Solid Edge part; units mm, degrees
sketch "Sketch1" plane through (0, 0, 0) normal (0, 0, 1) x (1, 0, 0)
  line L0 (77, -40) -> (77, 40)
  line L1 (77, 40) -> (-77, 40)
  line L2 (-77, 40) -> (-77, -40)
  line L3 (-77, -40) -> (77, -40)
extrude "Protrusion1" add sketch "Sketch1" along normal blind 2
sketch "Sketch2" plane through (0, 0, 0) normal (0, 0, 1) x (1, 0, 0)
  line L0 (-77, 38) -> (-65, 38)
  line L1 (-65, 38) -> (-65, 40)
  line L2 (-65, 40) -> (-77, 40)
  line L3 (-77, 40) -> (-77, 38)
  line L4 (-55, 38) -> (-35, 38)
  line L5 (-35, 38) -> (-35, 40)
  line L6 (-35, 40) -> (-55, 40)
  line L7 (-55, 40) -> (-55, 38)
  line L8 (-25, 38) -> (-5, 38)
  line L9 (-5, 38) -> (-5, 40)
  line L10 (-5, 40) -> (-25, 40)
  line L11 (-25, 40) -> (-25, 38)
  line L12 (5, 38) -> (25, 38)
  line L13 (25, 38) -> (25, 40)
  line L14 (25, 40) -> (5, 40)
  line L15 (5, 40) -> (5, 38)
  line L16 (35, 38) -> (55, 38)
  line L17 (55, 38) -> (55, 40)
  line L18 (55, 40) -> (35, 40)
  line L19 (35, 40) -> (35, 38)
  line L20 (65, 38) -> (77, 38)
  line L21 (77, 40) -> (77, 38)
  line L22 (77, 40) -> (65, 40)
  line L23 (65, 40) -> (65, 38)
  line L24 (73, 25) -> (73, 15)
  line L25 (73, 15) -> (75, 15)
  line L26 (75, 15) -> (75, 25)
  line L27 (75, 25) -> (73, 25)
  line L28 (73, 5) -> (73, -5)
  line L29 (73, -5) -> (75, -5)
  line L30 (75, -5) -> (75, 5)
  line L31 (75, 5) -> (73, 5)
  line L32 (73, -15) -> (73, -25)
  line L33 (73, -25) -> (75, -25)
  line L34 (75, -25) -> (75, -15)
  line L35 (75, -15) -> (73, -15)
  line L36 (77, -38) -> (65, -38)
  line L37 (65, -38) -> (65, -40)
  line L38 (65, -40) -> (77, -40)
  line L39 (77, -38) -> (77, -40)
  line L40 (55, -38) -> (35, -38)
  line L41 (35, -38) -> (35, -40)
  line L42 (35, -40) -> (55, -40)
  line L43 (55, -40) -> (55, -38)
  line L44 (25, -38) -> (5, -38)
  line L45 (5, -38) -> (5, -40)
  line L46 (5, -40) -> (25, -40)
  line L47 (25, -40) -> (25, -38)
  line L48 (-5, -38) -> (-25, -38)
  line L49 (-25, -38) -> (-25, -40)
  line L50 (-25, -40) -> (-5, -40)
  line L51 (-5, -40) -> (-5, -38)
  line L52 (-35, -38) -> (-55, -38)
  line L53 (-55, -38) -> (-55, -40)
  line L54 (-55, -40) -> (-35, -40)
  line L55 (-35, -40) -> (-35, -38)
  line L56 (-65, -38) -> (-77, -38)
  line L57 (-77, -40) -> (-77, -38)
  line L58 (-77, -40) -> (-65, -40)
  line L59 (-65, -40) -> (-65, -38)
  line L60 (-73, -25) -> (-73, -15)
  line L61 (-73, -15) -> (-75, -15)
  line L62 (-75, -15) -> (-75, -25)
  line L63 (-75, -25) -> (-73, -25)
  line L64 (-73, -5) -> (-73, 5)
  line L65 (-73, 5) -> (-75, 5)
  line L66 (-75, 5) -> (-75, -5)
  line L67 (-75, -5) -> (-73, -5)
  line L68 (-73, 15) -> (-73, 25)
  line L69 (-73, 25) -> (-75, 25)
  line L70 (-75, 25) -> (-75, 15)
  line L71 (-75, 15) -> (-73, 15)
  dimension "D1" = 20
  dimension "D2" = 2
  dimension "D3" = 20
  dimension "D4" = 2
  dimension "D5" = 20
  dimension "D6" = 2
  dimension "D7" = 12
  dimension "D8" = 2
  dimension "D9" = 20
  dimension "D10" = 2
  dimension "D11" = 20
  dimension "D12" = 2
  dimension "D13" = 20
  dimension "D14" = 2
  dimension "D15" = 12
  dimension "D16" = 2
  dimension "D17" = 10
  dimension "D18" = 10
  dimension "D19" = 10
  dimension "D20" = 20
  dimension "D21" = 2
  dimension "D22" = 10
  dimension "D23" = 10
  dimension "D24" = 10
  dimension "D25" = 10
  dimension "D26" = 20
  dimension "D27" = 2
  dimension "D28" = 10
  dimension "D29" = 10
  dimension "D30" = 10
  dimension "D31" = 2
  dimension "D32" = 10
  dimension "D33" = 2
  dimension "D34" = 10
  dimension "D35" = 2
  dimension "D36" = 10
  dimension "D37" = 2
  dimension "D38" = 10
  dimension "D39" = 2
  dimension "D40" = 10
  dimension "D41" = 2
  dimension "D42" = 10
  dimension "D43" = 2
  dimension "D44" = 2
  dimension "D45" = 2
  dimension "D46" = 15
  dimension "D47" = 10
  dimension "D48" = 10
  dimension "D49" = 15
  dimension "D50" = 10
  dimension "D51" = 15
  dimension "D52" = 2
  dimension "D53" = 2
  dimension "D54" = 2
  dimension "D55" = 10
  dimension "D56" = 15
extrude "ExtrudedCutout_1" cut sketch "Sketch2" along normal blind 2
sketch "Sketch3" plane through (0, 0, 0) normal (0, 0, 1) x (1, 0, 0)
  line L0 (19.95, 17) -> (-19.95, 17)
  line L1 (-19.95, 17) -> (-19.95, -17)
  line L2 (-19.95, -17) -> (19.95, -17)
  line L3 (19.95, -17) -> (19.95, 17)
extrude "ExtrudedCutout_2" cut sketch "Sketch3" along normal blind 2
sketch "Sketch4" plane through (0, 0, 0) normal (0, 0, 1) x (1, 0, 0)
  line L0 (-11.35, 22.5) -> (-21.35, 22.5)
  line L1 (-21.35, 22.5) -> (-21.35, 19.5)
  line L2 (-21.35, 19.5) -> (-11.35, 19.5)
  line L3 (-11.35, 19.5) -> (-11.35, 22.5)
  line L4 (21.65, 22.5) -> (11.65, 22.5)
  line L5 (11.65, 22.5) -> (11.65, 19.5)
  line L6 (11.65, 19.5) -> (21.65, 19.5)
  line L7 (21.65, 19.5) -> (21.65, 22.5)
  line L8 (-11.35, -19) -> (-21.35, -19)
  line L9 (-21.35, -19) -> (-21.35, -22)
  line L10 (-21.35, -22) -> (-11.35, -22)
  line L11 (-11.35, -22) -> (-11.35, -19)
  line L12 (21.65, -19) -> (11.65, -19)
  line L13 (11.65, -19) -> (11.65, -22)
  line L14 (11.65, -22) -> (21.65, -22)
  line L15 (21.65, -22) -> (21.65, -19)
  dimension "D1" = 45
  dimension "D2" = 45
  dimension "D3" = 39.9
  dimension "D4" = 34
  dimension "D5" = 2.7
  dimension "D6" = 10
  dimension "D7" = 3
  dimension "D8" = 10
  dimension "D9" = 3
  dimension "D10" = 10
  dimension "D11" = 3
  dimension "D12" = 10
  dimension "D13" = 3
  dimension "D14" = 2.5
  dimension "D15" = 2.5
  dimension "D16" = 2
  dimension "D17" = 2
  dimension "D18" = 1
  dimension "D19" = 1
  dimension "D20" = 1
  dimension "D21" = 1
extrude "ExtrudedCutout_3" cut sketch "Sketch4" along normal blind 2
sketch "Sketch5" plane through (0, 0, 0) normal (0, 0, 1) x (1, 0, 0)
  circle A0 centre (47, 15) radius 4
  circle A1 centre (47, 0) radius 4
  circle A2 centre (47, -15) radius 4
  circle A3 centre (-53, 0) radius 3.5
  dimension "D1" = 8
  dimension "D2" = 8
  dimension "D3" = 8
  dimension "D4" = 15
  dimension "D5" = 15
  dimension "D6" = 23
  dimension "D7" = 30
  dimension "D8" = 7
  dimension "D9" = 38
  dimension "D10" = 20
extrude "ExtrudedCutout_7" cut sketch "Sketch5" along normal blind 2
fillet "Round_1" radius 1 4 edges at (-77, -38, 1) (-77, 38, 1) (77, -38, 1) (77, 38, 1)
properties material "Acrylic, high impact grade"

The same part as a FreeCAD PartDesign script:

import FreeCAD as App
import Part
import Sketcher

V = App.Vector
Q = App.Units.Quantity


def edges_at(feature, points):
    """Names of the edges that pass closest to the given points."""
    edges = feature.Shape.Edges
    near = lambda p: min(range(len(edges)), key=lambda i: edges[i].distToShape(Part.Vertex(*p))[0])
    return sorted({f"Edge{near(p) + 1}" for p in points})


def add_polygon(sketch, points):
    """Adds a closed chain of lines whose ends are joined by coincident constraints."""
    first, n = sketch.GeometryCount, len(points)
    for a, b in zip(points, points[1:] + points[:1]):
        sketch.addGeometry(Part.LineSegment(App.Vector(*a, 0), App.Vector(*b, 0)), False)
    for i in range(n):
        sketch.addConstraint(Sketcher.Constraint("Coincident", first + i, 2, first + (i + 1) % n, 1))

doc = App.newDocument("Part")
body = doc.addObject("PartDesign::Body", "Body")

# Sketch on XY plane
sketch1 = body.newObject("Sketcher::SketchObject", "Sketch")
sketch1.AttachmentSupport = (doc.getObject("XY_Plane"), [""])
sketch1.MapMode = "FlatFace"
add_polygon(sketch1, [(-77, -40), (77, -40), (77, 40), (-77, 40)])  # lines 0-3
sketch1.addConstraint(Sketcher.Constraint("Horizontal", 0))
sketch1.addConstraint(Sketcher.Constraint("Vertical", 1))
sketch1.addConstraint(Sketcher.Constraint("Horizontal", 2))
sketch1.addConstraint(Sketcher.Constraint("Vertical", 3))
sketch1.addConstraint(Sketcher.Constraint("Symmetric", 0, 2, 2, 2, -1, 1))
sketch1.addConstraint(Sketcher.Constraint("DistanceX", 0, 1, 0, 2, Q("154 mm")))
sketch1.addConstraint(Sketcher.Constraint("DistanceY", 1, 1, 1, 2, Q("80 mm")))
pad1 = body.newObject("PartDesign::Pad", "Pad")
pad1.Profile = sketch1
pad1.Length = 2

# Sketch on XY plane
sketch2 = body.newObject("Sketcher::SketchObject", "Sketch001")
sketch2.AttachmentSupport = (doc.getObject("XY_Plane"), [""])
sketch2.MapMode = "FlatFace"
add_polygon(sketch2, [(-77, 40), (-77, 38), (-65, 38), (-65, 40)])  # lines 0-3
add_polygon(sketch2, [(-55, 40), (-55, 38), (-35, 38), (-35, 40)])  # lines 4-7
add_polygon(sketch2, [(-25, 40), (-25, 38), (-5, 38), (-5, 40)])  # lines 8-11
add_polygon(sketch2, [(5, 40), (5, 38), (25, 38), (25, 40)])  # lines 12-15
add_polygon(sketch2, [(35, 40), (35, 38), (55, 38), (55, 40)])  # lines 16-19
add_polygon(sketch2, [(65, 40), (65, 38), (77, 38), (77, 40)])  # lines 20-23
add_polygon(sketch2, [(75, 25), (73, 25), (73, 15), (75, 15)])  # lines 24-27
add_polygon(sketch2, [(75, 5), (73, 5), (73, -5), (75, -5)])  # lines 28-31
add_polygon(sketch2, [(75, -15), (73, -15), (73, -25), (75, -25)])  # lines 32-35
add_polygon(sketch2, [(77, -40), (77, -38), (65, -38), (65, -40)])  # lines 36-39
add_polygon(sketch2, [(55, -40), (55, -38), (35, -38), (35, -40)])  # lines 40-43
add_polygon(sketch2, [(25, -40), (25, -38), (5, -38), (5, -40)])  # lines 44-47
add_polygon(sketch2, [(-5, -40), (-5, -38), (-25, -38), (-25, -40)])  # lines 48-51
add_polygon(sketch2, [(-35, -40), (-35, -38), (-55, -38), (-55, -40)])  # lines 52-55
add_polygon(sketch2, [(-65, -40), (-65, -38), (-77, -38), (-77, -40)])  # lines 56-59
add_polygon(sketch2, [(-75, -25), (-73, -25), (-73, -15), (-75, -15)])  # lines 60-63
add_polygon(sketch2, [(-75, -5), (-73, -5), (-73, 5), (-75, 5)])  # lines 64-67
add_polygon(sketch2, [(-75, 15), (-73, 15), (-73, 25), (-75, 25)])  # lines 68-71
sketch2.addConstraint(Sketcher.Constraint("Vertical", 0))
sketch2.addConstraint(Sketcher.Constraint("Horizontal", 1))
sketch2.addConstraint(Sketcher.Constraint("Vertical", 2))
sketch2.addConstraint(Sketcher.Constraint("Horizontal", 3))
sketch2.addConstraint(Sketcher.Constraint("Vertical", 4))
sketch2.addConstraint(Sketcher.Constraint("Horizontal", 5))
sketch2.addConstraint(Sketcher.Constraint("Vertical", 6))
sketch2.addConstraint(Sketcher.Constraint("Horizontal", 7))
sketch2.addConstraint(Sketcher.Constraint("Vertical", 8))
sketch2.addConstraint(Sketcher.Constraint("Horizontal", 9))
sketch2.addConstraint(Sketcher.Constraint("Vertical", 10))
sketch2.addConstraint(Sketcher.Constraint("Horizontal", 11))
sketch2.addConstraint(Sketcher.Constraint("Vertical", 12))
sketch2.addConstraint(Sketcher.Constraint("Horizontal", 13))
sketch2.addConstraint(Sketcher.Constraint("Vertical", 14))
sketch2.addConstraint(Sketcher.Constraint("Horizontal", 15))
sketch2.addConstraint(Sketcher.Constraint("Vertical", 16))
sketch2.addConstraint(Sketcher.Constraint("Horizontal", 17))
sketch2.addConstraint(Sketcher.Constraint("Vertical", 18))
sketch2.addConstraint(Sketcher.Constraint("Horizontal", 19))
sketch2.addConstraint(Sketcher.Constraint("Vertical", 20))
sketch2.addConstraint(Sketcher.Constraint("Horizontal", 21))
sketch2.addConstraint(Sketcher.Constraint("Vertical", 22))
sketch2.addConstraint(Sketcher.Constraint("Horizontal", 23))
sketch2.addConstraint(Sketcher.Constraint("Horizontal", 24))
sketch2.addConstraint(Sketcher.Constraint("Vertical", 25))
sketch2.addConstraint(Sketcher.Constraint("Horizontal", 26))
sketch2.addConstraint(Sketcher.Constraint("Vertical", 27))
sketch2.addConstraint(Sketcher.Constraint("Horizontal", 28))
sketch2.addConstraint(Sketcher.Constraint("Vertical", 29))
sketch2.addConstraint(Sketcher.Constraint("Horizontal", 30))
sketch2.addConstraint(Sketcher.Constraint("Vertical", 31))
sketch2.addConstraint(Sketcher.Constraint("Horizontal", 32))
sketch2.addConstraint(Sketcher.Constraint("Vertical", 33))
sketch2.addConstraint(Sketcher.Constraint("Horizontal", 34))
sketch2.addConstraint(Sketcher.Constraint("Vertical", 35))
sketch2.addConstraint(Sketcher.Constraint("Vertical", 36))
sketch2.addConstraint(Sketcher.Constraint("Horizontal", 37))
sketch2.addConstraint(Sketcher.Constraint("Vertical", 38))
sketch2.addConstraint(Sketcher.Constraint("Horizontal", 39))
sketch2.addConstraint(Sketcher.Constraint("Vertical", 40))
sketch2.addConstraint(Sketcher.Constraint("Horizontal", 41))
sketch2.addConstraint(Sketcher.Constraint("Vertical", 42))
sketch2.addConstraint(Sketcher.Constraint("Horizontal", 43))
sketch2.addConstraint(Sketcher.Constraint("Vertical", 44))
sketch2.addConstraint(Sketcher.Constraint("Horizontal", 45))
sketch2.addConstraint(Sketcher.Constraint("Vertical", 46))
sketch2.addConstraint(Sketcher.Constraint("Horizontal", 47))
sketch2.addConstraint(Sketcher.Constraint("Vertical", 48))
sketch2.addConstraint(Sketcher.Constraint("Horizontal", 49))
sketch2.addConstraint(Sketcher.Constraint("Vertical", 50))
sketch2.addConstraint(Sketcher.Constraint("Horizontal", 51))
sketch2.addConstraint(Sketcher.Constraint("Vertical", 52))
sketch2.addConstraint(Sketcher.Constraint("Horizontal", 53))
sketch2.addConstraint(Sketcher.Constraint("Vertical", 54))
sketch2.addConstraint(Sketcher.Constraint("Horizontal", 55))
sketch2.addConstraint(Sketcher.Constraint("Vertical", 56))
sketch2.addConstraint(Sketcher.Constraint("Horizontal", 57))
sketch2.addConstraint(Sketcher.Constraint("Vertical", 58))
sketch2.addConstraint(Sketcher.Constraint("Horizontal", 59))
sketch2.addConstraint(Sketcher.Constraint("Horizontal", 60))
sketch2.addConstraint(Sketcher.Constraint("Vertical", 61))
sketch2.addConstraint(Sketcher.Constraint("Horizontal", 62))
sketch2.addConstraint(Sketcher.Constraint("Vertical", 63))
sketch2.addConstraint(Sketcher.Constraint("Horizontal", 64))
sketch2.addConstraint(Sketcher.Constraint("Vertical", 65))
sketch2.addConstraint(Sketcher.Constraint("Horizontal", 66))
sketch2.addConstraint(Sketcher.Constraint("Vertical", 67))
sketch2.addConstraint(Sketcher.Constraint("Horizontal", 68))
sketch2.addConstraint(Sketcher.Constraint("Vertical", 69))
sketch2.addConstraint(Sketcher.Constraint("Horizontal", 70))
sketch2.addConstraint(Sketcher.Constraint("Vertical", 71))
sketch2.addConstraint(Sketcher.Constraint("Symmetric", 0, 2, 36, 2, -1, 1))
sketch2.addConstraint(Sketcher.Constraint("Symmetric", 2, 2, 38, 2, -1, 1))
sketch2.addConstraint(Sketcher.Constraint("Symmetric", 4, 2, 40, 2, -1, 1))
sketch2.addConstraint(Sketcher.Constraint("Symmetric", 6, 2, 42, 2, -1, 1))
sketch2.addConstraint(Sketcher.Constraint("Symmetric", 8, 2, 44, 2, -1, 1))
sketch2.addConstraint(Sketcher.Constraint("Symmetric", 10, 2, 46, 2, -1, 1))
sketch2.addConstraint(Sketcher.Constraint("Symmetric", 12, 2, 48, 2, -1, 1))
sketch2.addConstraint(Sketcher.Constraint("Symmetric", 14, 2, 50, 2, -1, 1))
sketch2.addConstraint(Sketcher.Constraint("Symmetric", 16, 2, 52, 2, -1, 1))
sketch2.addConstraint(Sketcher.Constraint("Symmetric", 18, 2, 54, 2, -1, 1))
sketch2.addConstraint(Sketcher.Constraint("Symmetric", 20, 2, 56, 2, -1, 1))
sketch2.addConstraint(Sketcher.Constraint("Symmetric", 22, 2, 58, 2, -1, 1))
sketch2.addConstraint(Sketcher.Constraint("Symmetric", 24, 2, 60, 2, -1, 1))
sketch2.addConstraint(Sketcher.Constraint("Symmetric", 26, 2, 62, 2, -1, 1))
sketch2.addConstraint(Sketcher.Constraint("Symmetric", 28, 2, 64, 2, -1, 1))
sketch2.addConstraint(Sketcher.Constraint("Symmetric", 30, 2, 66, 2, -1, 1))
sketch2.addConstraint(Sketcher.Constraint("Symmetric", 32, 2, 68, 2, -1, 1))
sketch2.addConstraint(Sketcher.Constraint("Symmetric", 34, 2, 70, 2, -1, 1))
sketch2.addConstraint(Sketcher.Constraint("Symmetric", 9, 2, 12, 2, -2))
sketch2.addConstraint(Sketcher.Constraint("Symmetric", 11, 2, 14, 2, -2))
sketch2.addConstraint(Sketcher.Constraint("Symmetric", 5, 2, 16, 2, -2))
sketch2.addConstraint(Sketcher.Constraint("Symmetric", 7, 2, 18, 2, -2))
sketch2.addConstraint(Sketcher.Constraint("Symmetric", 1, 2, 20, 2, -2))
sketch2.addConstraint(Sketcher.Constraint("Symmetric", 3, 2, 22, 2, -2))
sketch2.addConstraint(Sketcher.Constraint("Symmetric", 33, 2, 60, 2, -2))
sketch2.addConstraint(Sketcher.Constraint("Symmetric", 35, 2, 62, 2, -2))
sketch2.addConstraint(Sketcher.Constraint("Horizontal", 1, 2, 4, 2))
sketch2.addConstraint(Sketcher.Constraint("Horizontal", 3, 2, 6, 2))
sketch2.addConstraint(Sketcher.Constraint("Horizontal", 5, 2, 8, 2))
sketch2.addConstraint(Sketcher.Constraint("Horizontal", 7, 2, 10, 2))
sketch2.addConstraint(Sketcher.Constraint("Horizontal", 30, 2, 64, 2))
sketch2.addConstraint(Sketcher.Constraint("Vertical", 25, 2, 28, 2))
sketch2.addConstraint(Sketcher.Constraint("Vertical", 27, 2, 30, 2))
sketch2.addConstraint(Sketcher.Constraint("Equal", 7, 9))
sketch2.addConstraint(Sketcher.Constraint("Equal", 70, 0))
sketch2.addConstraint(Sketcher.Constraint("Equal", 27, 29))
sketch2.addConstraint(Sketcher.Constraint("DistanceX", 1, 1, 1, 2, Q("12 mm")))
sketch2.addConstraint(Sketcher.Constraint("DistanceX", 5, 1, 5, 2, Q("20 mm")))
sketch2.addConstraint(Sketcher.Constraint("DistanceX", 24, 2, 24, 1, Q("2 mm")))
sketch2.addConstraint(Sketcher.Constraint("DistanceY", 25, 2, 25, 1, Q("10 mm")))
sketch2.addConstraint(Sketcher.Constraint("DistanceX", 0, 2, -1, 1, Q("77 mm")))
sketch2.addConstraint(Sketcher.Constraint("DistanceY", -1, 1, 0, 2, Q("38 mm")))
sketch2.addConstraint(Sketcher.Constraint("DistanceX", 4, 2, -1, 1, Q("55 mm")))
sketch2.addConstraint(Sketcher.Constraint("DistanceX", 8, 2, -1, 1, Q("25 mm")))
sketch2.addConstraint(Sketcher.Constraint("DistanceX", -1, 1, 24, 2, Q("73 mm")))
sketch2.addConstraint(Sketcher.Constraint("DistanceY", -1, 1, 24, 2, Q("25 mm")))
pocket1 = body.newObject("PartDesign::Pocket", "Pocket")
pocket1.Profile = sketch2
pocket1.Length = 2
pocket1.Reversed = True

# Sketch on XY plane
sketch3 = body.newObject("Sketcher::SketchObject", "Sketch002")
sketch3.AttachmentSupport = (doc.getObject("XY_Plane"), [""])
sketch3.MapMode = "FlatFace"
add_polygon(sketch3, [(19.95, -17), (19.95, 17), (-19.95, 17), (-19.95, -17)])  # lines 0-3
sketch3.addConstraint(Sketcher.Constraint("Vertical", 0))
sketch3.addConstraint(Sketcher.Constraint("Horizontal", 1))
sketch3.addConstraint(Sketcher.Constraint("Vertical", 2))
sketch3.addConstraint(Sketcher.Constraint("Horizontal", 3))
sketch3.addConstraint(Sketcher.Constraint("Symmetric", 0, 2, 2, 2, -1, 1))
sketch3.addConstraint(Sketcher.Constraint("DistanceY", 0, 1, 0, 2, Q("34 mm")))
sketch3.addConstraint(Sketcher.Constraint("DistanceX", 1, 2, 1, 1, Q("39.9 mm")))
pocket2 = body.newObject("PartDesign::Pocket", "Pocket001")
pocket2.Profile = sketch3
pocket2.Length = 2
pocket2.Reversed = True

# Sketch on XY plane
sketch4 = body.newObject("Sketcher::SketchObject", "Sketch003")
sketch4.AttachmentSupport = (doc.getObject("XY_Plane"), [""])
sketch4.MapMode = "FlatFace"
add_polygon(sketch4, [(-11.35, 19.5), (-11.35, 22.5), (-21.35, 22.5), (-21.35, 19.5)])  # lines 0-3
add_polygon(sketch4, [(21.65, 19.5), (21.65, 22.5), (11.65, 22.5), (11.65, 19.5)])  # lines 4-7
add_polygon(sketch4, [(-11.35, -22), (-11.35, -19), (-21.35, -19), (-21.35, -22)])  # lines 8-11
add_polygon(sketch4, [(21.65, -22), (21.65, -19), (11.65, -19), (11.65, -22)])  # lines 12-15
sketch4.addConstraint(Sketcher.Constraint("Vertical", 0))
sketch4.addConstraint(Sketcher.Constraint("Horizontal", 1))
sketch4.addConstraint(Sketcher.Constraint("Vertical", 2))
sketch4.addConstraint(Sketcher.Constraint("Horizontal", 3))
sketch4.addConstraint(Sketcher.Constraint("Vertical", 4))
sketch4.addConstraint(Sketcher.Constraint("Horizontal", 5))
sketch4.addConstraint(Sketcher.Constraint("Vertical", 6))
sketch4.addConstraint(Sketcher.Constraint("Horizontal", 7))
sketch4.addConstraint(Sketcher.Constraint("Vertical", 8))
sketch4.addConstraint(Sketcher.Constraint("Horizontal", 9))
sketch4.addConstraint(Sketcher.Constraint("Vertical", 10))
sketch4.addConstraint(Sketcher.Constraint("Horizontal", 11))
sketch4.addConstraint(Sketcher.Constraint("Vertical", 12))
sketch4.addConstraint(Sketcher.Constraint("Horizontal", 13))
sketch4.addConstraint(Sketcher.Constraint("Vertical", 14))
sketch4.addConstraint(Sketcher.Constraint("Horizontal", 15))
sketch4.addConstraint(Sketcher.Constraint("Horizontal", 1, 2, 4, 2))
sketch4.addConstraint(Sketcher.Constraint("Horizontal", 3, 2, 6, 2))
sketch4.addConstraint(Sketcher.Constraint("Horizontal", 9, 2, 12, 2))
sketch4.addConstraint(Sketcher.Constraint("Horizontal", 11, 2, 14, 2))
sketch4.addConstraint(Sketcher.Constraint("Vertical", 3, 2, 8, 2))
sketch4.addConstraint(Sketcher.Constraint("Vertical", 2, 2, 9, 2))
sketch4.addConstraint(Sketcher.Constraint("Vertical", 7, 2, 12, 2))
sketch4.addConstraint(Sketcher.Constraint("Vertical", 6, 2, 13, 2))
sketch4.addConstraint(Sketcher.Constraint("Equal", 3, 5))
sketch4.addConstraint(Sketcher.Constraint("Equal", 6, 8))
sketch4.addConstraint(Sketcher.Constraint("DistanceX", 1, 2, 1, 1, Q("10 mm")))
sketch4.addConstraint(Sketcher.Constraint("DistanceY", 0, 1, 0, 2, Q("3 mm")))
sketch4.addConstraint(Sketcher.Constraint("DistanceY", 8, 2, -1, 1, Q("19 mm")))
sketch4.addConstraint(Sketcher.Constraint("DistanceX", 0, 2, 4, 2, Q("33 mm")))
sketch4.addConstraint(Sketcher.Constraint("DistanceY", -1, 1, 0, 2, Q("22.5 mm")))
sketch4.addConstraint(Sketcher.Constraint("DistanceX", 0, 2, -1, 1, Q("11.35 mm")))
pocket3 = body.newObject("PartDesign::Pocket", "Pocket002")
pocket3.Profile = sketch4
pocket3.Length = 2
pocket3.Reversed = True

# Sketch on XY plane
sketch5 = body.newObject("Sketcher::SketchObject", "Sketch004")
sketch5.AttachmentSupport = (doc.getObject("XY_Plane"), [""])
sketch5.MapMode = "FlatFace"
sketch5.addGeometry(Part.Circle(V(47, 15, 0), V(0, 0, 1), 4), False)
sketch5.addGeometry(Part.Circle(V(47, 0, 0), V(0, 0, 1), 4), False)
sketch5.addGeometry(Part.Circle(V(47, -15, 0), V(0, 0, 1), 4), False)
sketch5.addGeometry(Part.Circle(V(-53, 0, 0), V(0, 0, 1), 3.5), False)
sketch5.addConstraint(Sketcher.Constraint("Equal", 0, 1))
sketch5.addConstraint(Sketcher.Constraint("Equal", 1, 2))
sketch5.addConstraint(Sketcher.Constraint("Symmetric", 0, 3, 2, 3, -1))
sketch5.addConstraint(Sketcher.Constraint("PointOnObject", 1, 3, -1))
sketch5.addConstraint(Sketcher.Constraint("PointOnObject", 3, 3, -1))
sketch5.addConstraint(Sketcher.Constraint("Vertical", 0, 3, 1, 3))
sketch5.addConstraint(Sketcher.Constraint("Diameter", 0, Q("8 mm")))
sketch5.addConstraint(Sketcher.Constraint("Diameter", 3, Q("7 mm")))
sketch5.addConstraint(Sketcher.Constraint("DistanceX", -1, 1, 0, 3, Q("47 mm")))
sketch5.addConstraint(Sketcher.Constraint("DistanceY", -1, 1, 0, 3, Q("15 mm")))
sketch5.addConstraint(Sketcher.Constraint("DistanceX", 3, 3, -1, 1, Q("53 mm")))
pocket4 = body.newObject("PartDesign::Pocket", "Pocket003")
pocket4.Profile = sketch5
pocket4.Length = 2
pocket4.Reversed = True
doc.recompute()

fillet = body.newObject("PartDesign::Fillet", "Fillet")
fillet.Base = (pocket4, edges_at(pocket4, [
    (-77, -38, 1),
    (-77, 38, 1),
    (77, -38, 1),
    (77, 38, 1),
]))
fillet.Radius = 1

doc.recompute()
